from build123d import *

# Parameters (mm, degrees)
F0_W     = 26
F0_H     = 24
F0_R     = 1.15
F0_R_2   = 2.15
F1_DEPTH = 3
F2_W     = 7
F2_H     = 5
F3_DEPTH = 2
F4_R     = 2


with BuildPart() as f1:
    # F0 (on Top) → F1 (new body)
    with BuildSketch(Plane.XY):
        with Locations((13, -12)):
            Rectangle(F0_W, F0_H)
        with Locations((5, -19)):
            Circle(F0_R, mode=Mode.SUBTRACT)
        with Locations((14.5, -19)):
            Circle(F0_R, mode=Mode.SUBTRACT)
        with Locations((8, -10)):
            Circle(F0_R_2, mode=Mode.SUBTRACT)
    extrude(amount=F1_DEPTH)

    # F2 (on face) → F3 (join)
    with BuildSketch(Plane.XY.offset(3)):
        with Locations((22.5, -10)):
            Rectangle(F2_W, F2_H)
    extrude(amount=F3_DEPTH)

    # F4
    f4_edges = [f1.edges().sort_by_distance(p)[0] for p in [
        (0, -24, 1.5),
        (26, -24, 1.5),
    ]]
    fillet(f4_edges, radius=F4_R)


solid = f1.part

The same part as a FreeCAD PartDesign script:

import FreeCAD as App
import Part
import Sketcher
from FreeCAD import Vector
Q = App.Units.Quantity


def edges_at(feature, points):
    """Names of the edges that pass closest to the given points."""
    edges = feature.Shape.Edges
    near = lambda p: min(range(len(edges)), key=lambda i: edges[i].distToShape(Part.Vertex(*p))[0])
    return sorted({f"Edge{near(p) + 1}" for p in points})

doc = App.newDocument("Part")
body = doc.addObject("PartDesign::Body", "Body")

# Sketch on XY plane
sketch1 = body.newObject("Sketcher::SketchObject", "Sketch")
sketch1.AttachmentSupport = (doc.getObject("XY_Plane"), [""])
sketch1.MapMode = "FlatFace"
sketch1.addGeometry([
    Part.LineSegment(Vector(0, 0, 0), Vector(0, -24, 0)),  # 0
    Part.LineSegment(Vector(0, -24, 0), Vector(26, -24, 0)),  # 1
    Part.LineSegment(Vector(26, -24, 0), Vector(26, 0, 0)),  # 2
    Part.LineSegment(Vector(26, 0, 0), Vector(0, 0, 0)),  # 3
    Part.Circle(Vector(5, -19, 0), Vector(0, 0, 1), 1.1),  # 4
    Part.Circle(Vector(14.5, -19, 0), Vector(0, 0, 1), 1.1),  # 5
    Part.Circle(Vector(8, -10, 0), Vector(0, 0, 1), 2.1),  # 6
], False)
sketch1.addConstraint([
    Sketcher.Constraint("Coincident", 0, 2, 1, 1),
    Sketcher.Constraint("Coincident", 1, 2, 2, 1),
    Sketcher.Constraint("Coincident", 2, 2, 3, 1),
    Sketcher.Constraint("Coincident", 3, 2, 0, 1),
    Sketcher.Constraint("Vertical", 0),
    Sketcher.Constraint("Horizontal", 1),
    Sketcher.Constraint("Vertical", 2),
    Sketcher.Constraint("Horizontal", 3),
    Sketcher.Constraint("Coincident", 3, 2, -1, 1),
    Sketcher.Constraint("Equal", 4, 5),
    Sketcher.Constraint("Horizontal", 4, 3, 5, 3),
    Sketcher.Constraint("Diameter", 4, Q("2.3 mm")),
    Sketcher.Constraint("Diameter", 6, Q("4.3 mm")),
    Sketcher.Constraint("DistanceX", 1, 1, 1, 2, Q("26 mm")),
    Sketcher.Constraint("DistanceY", 0, 2, 0, 1, Q("24 mm")),
    Sketcher.Constraint("DistanceX", -1, 1, 4, 3, Q("5 mm")),
    Sketcher.Constraint("DistanceY", 4, 3, -1, 1, Q("19 mm")),
    Sketcher.Constraint("DistanceX", -1, 1, 6, 3, Q("8 mm")),
    Sketcher.Constraint("DistanceY", 6, 3, -1, 1, Q("10 mm")),
    Sketcher.Constraint("DistanceX", -1, 1, 5, 3, Q("14.5 mm")),
])
pad1 = body.newObject("PartDesign::Pad", "Pad")
pad1.Profile = sketch1
pad1.Length = 3

# Sketch on XY plane
sketch2 = body.newObject("Sketcher::SketchObject", "Sketch001")
sketch2.AttachmentSupport = (doc.getObject("XY_Plane"), [""])
sketch2.MapMode = "FlatFace"
sketch2.AttachmentOffset = App.Placement(Vector(0, 0, 3), App.Rotation())
sketch2.addGeometry([
    Part.LineSegment(Vector(19, -8, 0), Vector(19, -12, 0)),
    Part.LineSegment(Vector(19, -12, 0), Vector(26, -12, 0)),
    Part.LineSegment(Vector(26, -12, 0), Vector(26, -8, 0)),
    Part.LineSegment(Vector(26, -8, 0), Vector(19, -8, 0)),
], False)
sketch2.addConstraint([
    Sketcher.Constraint("Coincident", 0, 2, 1, 1),
    Sketcher.Constraint("Coincident", 1, 2, 2, 1),
    Sketcher.Constraint("Coincident", 2, 2, 3, 1),
    Sketcher.Constraint("Coincident", 3, 2, 0, 1),
    Sketcher.Constraint("Vertical", 0),
    Sketcher.Constraint("Horizontal", 1),
    Sketcher.Constraint("Vertical", 2),
    Sketcher.Constraint("Horizontal", 3),
    Sketcher.Constraint("DistanceX", 1, 1, 1, 2, Q("7 mm")),
    Sketcher.Constraint("DistanceY", 0, 2, 0, 1, Q("5 mm")),
    Sketcher.Constraint("DistanceX", -1, 1, 0, 2, Q("19 mm")),
    Sketcher.Constraint("DistanceY", 0, 2, -1, 1, Q("12.5 mm")),
])
pad2 = body.newObject("PartDesign::Pad", "Pad001")
pad2.Profile = sketch2
pad2.Length = 2
doc.recompute()

fillet = body.newObject("PartDesign::Fillet", "Fillet")
fillet.Base = (pad2, edges_at(pad2, [(0, -24, 1.5), (26, -24, 1.5)]))
fillet.Radius = 2

doc.recompute()
